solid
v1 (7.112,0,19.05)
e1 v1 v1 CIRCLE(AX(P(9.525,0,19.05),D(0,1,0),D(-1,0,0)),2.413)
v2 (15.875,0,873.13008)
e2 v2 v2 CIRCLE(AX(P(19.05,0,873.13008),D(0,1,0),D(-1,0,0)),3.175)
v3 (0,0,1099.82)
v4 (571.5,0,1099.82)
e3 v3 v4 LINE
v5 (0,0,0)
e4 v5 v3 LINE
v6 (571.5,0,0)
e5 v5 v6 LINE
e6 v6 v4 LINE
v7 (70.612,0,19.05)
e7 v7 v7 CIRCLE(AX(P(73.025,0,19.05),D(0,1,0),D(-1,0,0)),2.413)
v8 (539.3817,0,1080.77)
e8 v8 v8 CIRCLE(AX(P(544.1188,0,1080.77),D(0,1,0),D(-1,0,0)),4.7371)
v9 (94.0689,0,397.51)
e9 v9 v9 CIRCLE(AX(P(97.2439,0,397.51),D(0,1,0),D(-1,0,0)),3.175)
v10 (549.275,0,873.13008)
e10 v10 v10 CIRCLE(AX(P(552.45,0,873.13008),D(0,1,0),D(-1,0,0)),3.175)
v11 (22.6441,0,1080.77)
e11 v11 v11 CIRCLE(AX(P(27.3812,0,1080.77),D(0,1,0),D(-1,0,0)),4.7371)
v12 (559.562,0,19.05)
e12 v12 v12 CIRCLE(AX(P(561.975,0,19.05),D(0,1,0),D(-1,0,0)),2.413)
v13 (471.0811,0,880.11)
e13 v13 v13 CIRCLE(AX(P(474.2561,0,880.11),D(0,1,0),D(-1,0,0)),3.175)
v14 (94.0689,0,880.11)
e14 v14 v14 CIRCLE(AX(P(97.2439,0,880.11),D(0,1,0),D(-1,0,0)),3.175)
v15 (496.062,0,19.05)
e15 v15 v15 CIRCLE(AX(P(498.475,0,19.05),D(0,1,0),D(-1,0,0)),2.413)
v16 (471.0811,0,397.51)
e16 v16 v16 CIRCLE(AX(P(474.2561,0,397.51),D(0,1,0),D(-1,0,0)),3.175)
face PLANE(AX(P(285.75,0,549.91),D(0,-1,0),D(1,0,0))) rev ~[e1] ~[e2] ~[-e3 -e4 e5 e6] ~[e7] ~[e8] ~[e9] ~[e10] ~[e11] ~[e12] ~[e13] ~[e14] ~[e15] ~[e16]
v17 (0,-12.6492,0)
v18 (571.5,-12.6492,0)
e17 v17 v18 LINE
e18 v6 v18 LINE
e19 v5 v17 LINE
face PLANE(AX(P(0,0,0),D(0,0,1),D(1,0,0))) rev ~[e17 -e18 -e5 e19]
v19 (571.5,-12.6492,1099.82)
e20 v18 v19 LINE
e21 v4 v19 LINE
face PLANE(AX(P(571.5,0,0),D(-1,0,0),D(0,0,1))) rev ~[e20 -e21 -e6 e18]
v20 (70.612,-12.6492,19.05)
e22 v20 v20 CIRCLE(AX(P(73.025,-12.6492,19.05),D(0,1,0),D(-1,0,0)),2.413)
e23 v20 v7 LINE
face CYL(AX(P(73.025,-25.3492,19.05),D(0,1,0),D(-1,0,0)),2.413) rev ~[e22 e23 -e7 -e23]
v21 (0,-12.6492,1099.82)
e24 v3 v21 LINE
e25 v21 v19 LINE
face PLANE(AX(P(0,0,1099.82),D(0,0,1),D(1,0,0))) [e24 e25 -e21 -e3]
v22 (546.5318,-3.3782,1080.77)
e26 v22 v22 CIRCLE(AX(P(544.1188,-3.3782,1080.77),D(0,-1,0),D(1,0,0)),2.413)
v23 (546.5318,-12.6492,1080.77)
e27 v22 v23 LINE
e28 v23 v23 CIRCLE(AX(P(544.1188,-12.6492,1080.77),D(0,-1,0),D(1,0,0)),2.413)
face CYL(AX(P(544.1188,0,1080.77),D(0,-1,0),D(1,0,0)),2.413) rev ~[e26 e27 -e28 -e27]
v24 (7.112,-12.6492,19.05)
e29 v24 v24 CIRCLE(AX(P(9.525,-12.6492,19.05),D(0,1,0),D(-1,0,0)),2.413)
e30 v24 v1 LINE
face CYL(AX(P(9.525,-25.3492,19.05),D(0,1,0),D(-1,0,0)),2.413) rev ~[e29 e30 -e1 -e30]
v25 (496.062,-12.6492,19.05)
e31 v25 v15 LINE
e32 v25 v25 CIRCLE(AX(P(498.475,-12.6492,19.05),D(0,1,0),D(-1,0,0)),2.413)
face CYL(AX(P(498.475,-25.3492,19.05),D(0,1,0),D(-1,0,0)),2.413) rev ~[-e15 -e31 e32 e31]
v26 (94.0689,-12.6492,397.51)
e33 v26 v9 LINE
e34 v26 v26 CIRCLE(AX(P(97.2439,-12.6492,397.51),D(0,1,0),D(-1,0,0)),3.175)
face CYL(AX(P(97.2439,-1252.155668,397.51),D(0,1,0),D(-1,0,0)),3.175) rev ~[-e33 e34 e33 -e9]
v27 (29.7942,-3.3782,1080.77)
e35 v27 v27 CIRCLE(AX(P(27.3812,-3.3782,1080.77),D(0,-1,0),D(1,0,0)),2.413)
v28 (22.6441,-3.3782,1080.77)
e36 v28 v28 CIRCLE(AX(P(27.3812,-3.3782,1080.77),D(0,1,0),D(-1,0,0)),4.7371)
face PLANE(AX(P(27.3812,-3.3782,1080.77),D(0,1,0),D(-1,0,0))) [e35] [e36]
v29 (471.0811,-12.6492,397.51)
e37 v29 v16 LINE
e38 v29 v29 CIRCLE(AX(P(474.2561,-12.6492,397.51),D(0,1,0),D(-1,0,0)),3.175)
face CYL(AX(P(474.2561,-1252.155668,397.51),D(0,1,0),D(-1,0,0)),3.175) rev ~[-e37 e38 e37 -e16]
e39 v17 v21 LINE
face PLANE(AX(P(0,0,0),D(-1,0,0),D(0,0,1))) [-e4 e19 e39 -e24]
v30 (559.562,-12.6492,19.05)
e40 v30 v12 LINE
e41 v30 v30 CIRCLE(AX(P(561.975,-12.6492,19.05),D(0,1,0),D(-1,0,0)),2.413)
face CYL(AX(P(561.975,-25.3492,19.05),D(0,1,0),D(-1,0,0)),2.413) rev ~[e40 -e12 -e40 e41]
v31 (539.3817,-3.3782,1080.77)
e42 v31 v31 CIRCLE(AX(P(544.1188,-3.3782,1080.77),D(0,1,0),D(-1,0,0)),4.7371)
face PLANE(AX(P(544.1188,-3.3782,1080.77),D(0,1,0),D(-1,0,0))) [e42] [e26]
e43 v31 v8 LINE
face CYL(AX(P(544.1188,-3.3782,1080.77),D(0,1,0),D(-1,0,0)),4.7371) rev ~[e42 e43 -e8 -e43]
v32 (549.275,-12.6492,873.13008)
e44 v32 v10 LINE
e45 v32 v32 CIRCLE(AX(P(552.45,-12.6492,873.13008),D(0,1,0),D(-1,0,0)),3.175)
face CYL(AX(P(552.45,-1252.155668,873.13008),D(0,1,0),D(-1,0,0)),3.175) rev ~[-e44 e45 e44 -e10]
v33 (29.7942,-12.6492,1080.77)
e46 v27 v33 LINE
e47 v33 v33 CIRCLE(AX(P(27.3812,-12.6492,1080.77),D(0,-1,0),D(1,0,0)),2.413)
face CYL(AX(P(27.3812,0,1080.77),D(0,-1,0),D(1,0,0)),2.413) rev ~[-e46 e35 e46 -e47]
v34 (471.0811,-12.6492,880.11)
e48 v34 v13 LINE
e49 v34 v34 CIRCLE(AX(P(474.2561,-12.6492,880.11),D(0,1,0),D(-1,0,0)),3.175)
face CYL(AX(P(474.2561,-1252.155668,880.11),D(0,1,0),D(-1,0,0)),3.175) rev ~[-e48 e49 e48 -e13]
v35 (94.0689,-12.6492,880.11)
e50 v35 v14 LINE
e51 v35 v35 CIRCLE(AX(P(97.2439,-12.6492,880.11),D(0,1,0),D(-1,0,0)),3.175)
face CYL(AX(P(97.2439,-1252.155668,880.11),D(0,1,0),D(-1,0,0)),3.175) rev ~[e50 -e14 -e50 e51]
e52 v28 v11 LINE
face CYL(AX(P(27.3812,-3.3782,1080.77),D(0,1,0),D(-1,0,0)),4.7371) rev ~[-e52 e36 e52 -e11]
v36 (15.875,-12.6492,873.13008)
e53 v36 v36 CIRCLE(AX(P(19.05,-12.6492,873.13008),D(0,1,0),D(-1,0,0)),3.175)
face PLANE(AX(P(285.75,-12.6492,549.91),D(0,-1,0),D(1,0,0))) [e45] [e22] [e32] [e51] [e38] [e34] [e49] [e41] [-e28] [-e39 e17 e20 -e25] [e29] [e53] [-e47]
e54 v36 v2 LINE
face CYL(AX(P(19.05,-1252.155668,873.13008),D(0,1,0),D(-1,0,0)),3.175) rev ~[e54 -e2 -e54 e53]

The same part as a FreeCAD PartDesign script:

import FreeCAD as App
import Part
import Sketcher
from FreeCAD import Vector
Q = App.Units.Quantity


def add_polygon(sketch, points):
    """Adds a closed chain of lines whose ends are joined by coincident constraints."""
    first, n = sketch.GeometryCount, len(points)
    for a, b in zip(points, points[1:] + points[:1]):
        sketch.addGeometry(Part.LineSegment(App.Vector(*a, 0), App.Vector(*b, 0)), False)
    for i in range(n):
        sketch.addConstraint(Sketcher.Constraint("Coincident", first + i, 2, first + (i + 1) % n, 1))

doc = App.newDocument("Part")
body = doc.addObject("PartDesign::Body", "Body")

# Sketch on XZ plane
sketch1 = body.newObject("Sketcher::SketchObject", "Sketch")
sketch1.AttachmentSupport = (doc.getObject("XZ_Plane"), [""])
sketch1.MapMode = "FlatFace"
add_polygon(sketch1, [(0, 1100), (0, 0), (572, 0), (572, 1100)])  # lines 0-3
sketch1.addConstraint([
    Sketcher.Constraint("Vertical", 0),
    Sketcher.Constraint("Horizontal", 1),
    Sketcher.Constraint("Vertical", 2),
    Sketcher.Constraint("Horizontal", 3),
    Sketcher.Constraint("Coincident", 0, 2, -1, 1),
    Sketcher.Constraint("DistanceX", 1, 1, 1, 2, Q("22.5 in")),
    Sketcher.Constraint("DistanceY", 0, 2, 0, 1, Q("43.3 in")),
])
pad1 = body.newObject("PartDesign::Pad", "Pad")
pad1.Profile = sketch1
pad1.Length = Q("0.498 in")

# Sketch on XZ plane
sketch2 = body.newObject("Sketcher::SketchObject", "Sketch001")
sketch2.AttachmentSupport = (doc.getObject("XZ_Plane"), [""])
sketch2.MapMode = "FlatFace"
sketch2.AttachmentOffset = App.Placement(Vector(0, 0, 0.498 * 25.4), App.Rotation())
sketch2.addGeometry([
    Part.Circle(Vector(9.5, 19.1, 0), Vector(0, 0, 1), 2.4),
    Part.Circle(Vector(73, 19.1, 0), Vector(0, 0, 1), 2.4),
    Part.Circle(Vector(498.5, 19.1, 0), Vector(0, 0, 1), 2.4),
    Part.Circle(Vector(562, 19.1, 0), Vector(0, 0, 1), 2.4),
], False)
sketch2.addConstraint([
    Sketcher.Constraint("Equal", 0, 1),
    Sketcher.Constraint("Equal", 1, 2),
    Sketcher.Constraint("Equal", 2, 3),
    Sketcher.Constraint("Horizontal", 0, 3, 1, 3),
    Sketcher.Constraint("Horizontal", 1, 3, 2, 3),
    Sketcher.Constraint("Horizontal", 2, 3, 3, 3),
    Sketcher.Constraint("Diameter", 0, Q("0.19 in")),
    Sketcher.Constraint("DistanceX", 0, 3, 1, 3, Q("2.5 in")),
    Sketcher.Constraint("DistanceX", 2, 3, 3, 3, Q("2.5 in")),
    Sketcher.Constraint("DistanceY", -1, 1, 0, 3, Q("0.75 in")),
    Sketcher.Constraint("DistanceX", 1, 3, 2, 3, Q("16.75 in")),
    Sketcher.Constraint("DistanceX", -1, 1, 0, 3, Q("0.375 in")),
])
doc.recompute()
hole = body.newObject("PartDesign::Hole", "Hole")
hole.Profile = sketch2
hole.ThreadType = "None"
hole.Diameter = Q("0.19 in")
hole.DepthType = "Dimension"
hole.Depth = Q("0.5 in")
hole.DrillPoint = "Flat"

# Sketch on XZ plane
sketch3 = body.newObject("Sketcher::SketchObject", "Sketch002")
sketch3.AttachmentSupport = (doc.getObject("XZ_Plane"), [""])
sketch3.MapMode = "FlatFace"
sketch3.AttachmentOffset = App.Placement(Vector(0, 0, 0.498 * 25.4), App.Rotation())
sketch3.addGeometry([
    Part.Circle(Vector(97.2, 880.1, 0), Vector(0, 0, 1), 3.2),  # 0
    Part.Circle(Vector(474.3, 880.1, 0), Vector(0, 0, 1), 3.2),  # 1
    Part.Circle(Vector(97.2, 397.5, 0), Vector(0, 0, 1), 3.2),  # 2
    Part.Circle(Vector(474.3, 397.5, 0), Vector(0, 0, 1), 3.2),  # 3
    Part.Circle(Vector(19.1, 873.1, 0), Vector(0, 0, 1), 3.2),  # 4
    Part.Circle(Vector(552.5, 873.1, 0), Vector(0, 0, 1), 3.2),  # 5
], False)
sketch3.addConstraint([
    Sketcher.Constraint("Equal", 0, 1),
    Sketcher.Constraint("Equal", 1, 2),
    Sketcher.Constraint("Equal", 2, 3),
    Sketcher.Constraint("Equal", 3, 4),
    Sketcher.Constraint("Equal", 4, 5),
    Sketcher.Constraint("Horizontal", 0, 3, 1, 3),
    Sketcher.Constraint("Horizontal", 2, 3, 3, 3),
    Sketcher.Constraint("Horizontal", 4, 3, 5, 3),
    Sketcher.Constraint("Vertical", 0, 3, 2, 3),
    Sketcher.Constraint("Vertical", 1, 3, 3, 3),
    Sketcher.Constraint("Diameter", 0, Q("0.25 in")),
    Sketcher.Constraint("DistanceY", 2, 3, 0, 3, Q("19 in")),
    Sketcher.Constraint("DistanceX", 4, 3, 5, 3, Q("21 in")),
    Sketcher.Constraint("DistanceY", -1, 1, 0, 3, Q("34.65 in")),
    Sketcher.Constraint("DistanceX", -1, 1, 4, 3, Q("0.75 in")),
    Sketcher.Constraint("DistanceX", 0, 3, 1, 3, Q("14.843 in")),
    Sketcher.Constraint("DistanceX", -1, 1, 0, 3, Q("3.8285 in")),
    Sketcher.Constraint("DistanceY", -1, 1, 4, 3, Q("34.3752 in")),
])
doc.recompute()
hole2 = body.newObject("PartDesign::Hole", "Hole001")
hole2.Profile = sketch3
hole2.ThreadType = "None"
hole2.Diameter = Q("0.25 in")
hole2.DepthType = "ThroughAll"

# Sketch on XZ plane
sketch4 = body.newObject("Sketcher::SketchObject", "Sketch003")
sketch4.AttachmentSupport = (doc.getObject("XZ_Plane"), [""])
sketch4.MapMode = "FlatFace"
sketch4.addGeometry([
    Part.Circle(Vector(544.1, 1080.8, 0), Vector(0, 0, 1), 2.4),
    Part.Circle(Vector(27.4, 1080.8, 0), Vector(0, 0, 1), 2.4),
], False)
sketch4.addConstraint([
    Sketcher.Constraint("Equal", 0, 1),
    Sketcher.Constraint("Horizontal", 0, 3, 1, 3),
    Sketcher.Constraint("Diameter", 0, Q("0.19 in")),
    Sketcher.Constraint("DistanceY", -1, 1, 0, 3, Q("42.55 in")),
    Sketcher.Constraint("DistanceX", -1, 1, 0, 3, Q("21.422 in")),
    Sketcher.Constraint("DistanceX", -1, 1, 1, 3, Q("1.078 in")),
])
doc.recompute()
hole3 = body.newObject("PartDesign::Hole", "Hole002")
hole3.Profile = sketch4
hole3.ThreadType = "None"
hole3.Diameter = Q("0.19 in")
hole3.DepthType = "Dimension"
hole3.Depth = Q("0.5 in")
hole3.DrillPoint = "Flat"
hole3.HoleCutType = "Counterbore"
hole3.HoleCutDiameter = Q("0.373 in")
hole3.HoleCutDepth = Q("0.133 in")
hole3.Reversed = True

doc.recompute()
